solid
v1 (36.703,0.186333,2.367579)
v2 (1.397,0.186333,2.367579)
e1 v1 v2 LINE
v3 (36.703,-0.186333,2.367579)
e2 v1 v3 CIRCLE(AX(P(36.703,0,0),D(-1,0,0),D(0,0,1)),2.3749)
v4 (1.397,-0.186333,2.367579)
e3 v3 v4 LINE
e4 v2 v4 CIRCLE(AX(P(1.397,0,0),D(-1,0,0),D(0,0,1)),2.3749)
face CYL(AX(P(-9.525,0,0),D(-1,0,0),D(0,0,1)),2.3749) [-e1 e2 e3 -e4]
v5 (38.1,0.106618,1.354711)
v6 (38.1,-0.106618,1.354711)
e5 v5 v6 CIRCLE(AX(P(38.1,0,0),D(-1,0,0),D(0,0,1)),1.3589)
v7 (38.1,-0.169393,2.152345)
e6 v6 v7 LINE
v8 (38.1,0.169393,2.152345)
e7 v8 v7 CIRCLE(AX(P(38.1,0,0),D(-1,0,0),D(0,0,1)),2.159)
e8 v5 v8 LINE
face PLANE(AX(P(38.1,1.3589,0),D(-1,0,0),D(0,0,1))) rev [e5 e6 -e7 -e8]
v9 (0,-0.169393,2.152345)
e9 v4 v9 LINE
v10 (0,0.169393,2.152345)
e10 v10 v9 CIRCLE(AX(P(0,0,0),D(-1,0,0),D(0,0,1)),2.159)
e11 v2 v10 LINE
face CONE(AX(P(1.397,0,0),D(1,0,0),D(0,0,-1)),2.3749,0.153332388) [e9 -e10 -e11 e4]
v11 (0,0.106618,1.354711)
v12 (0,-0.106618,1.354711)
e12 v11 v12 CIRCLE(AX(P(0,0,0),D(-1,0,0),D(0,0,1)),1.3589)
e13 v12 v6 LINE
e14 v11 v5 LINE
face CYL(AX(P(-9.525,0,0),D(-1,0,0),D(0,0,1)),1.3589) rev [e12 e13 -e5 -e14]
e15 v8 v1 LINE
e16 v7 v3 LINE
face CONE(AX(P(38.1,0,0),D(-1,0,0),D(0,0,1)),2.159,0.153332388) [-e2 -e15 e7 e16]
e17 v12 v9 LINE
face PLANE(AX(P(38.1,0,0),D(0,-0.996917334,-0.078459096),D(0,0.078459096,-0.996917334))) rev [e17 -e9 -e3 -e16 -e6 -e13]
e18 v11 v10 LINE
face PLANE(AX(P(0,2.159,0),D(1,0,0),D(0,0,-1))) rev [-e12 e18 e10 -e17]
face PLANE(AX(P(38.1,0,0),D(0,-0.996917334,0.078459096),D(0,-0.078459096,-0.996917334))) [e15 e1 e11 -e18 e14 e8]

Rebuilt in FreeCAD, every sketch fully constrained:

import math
import FreeCAD as App
import Part
import Sketcher

V = App.Vector
Q = App.Units.Quantity


def add_polygon(sketch, points):
    """Adds a closed chain of lines whose ends are joined by coincident constraints."""
    first, n = sketch.GeometryCount, len(points)
    for a, b in zip(points, points[1:] + points[:1]):
        sketch.addGeometry(Part.LineSegment(App.Vector(*a, 0), App.Vector(*b, 0)), False)
    for i in range(n):
        sketch.addConstraint(Sketcher.Constraint("Coincident", first + i, 2, first + (i + 1) % n, 1))

doc = App.newDocument("Part")
params = doc.addObject("Spreadsheet::Sheet", "Params")
for row, (alias, value) in enumerate([
    ("sketch1_width", "1.5 in"),
    ("sketch1_width2", "1.39 in"),
    ("revolution_angle", "360 deg"),
], start=1):
    params.set(f"A{row}", alias)
    params.set(f"B{row}", "=" + value)
    params.setAlias(f"B{row}", alias)

body = doc.addObject("PartDesign::Body", "Body")

sketch1 = body.newObject("Sketcher::SketchObject", "Sketch")
sketch1.AttachmentSupport = (doc.getObject("XY_Plane"), [""])
sketch1.MapMode = "FlatFace"
add_polygon(sketch1, [(0, 1.4), (38.1, 1.4), (38.1, 2.2), (36.7, 2.4), (1.4, 2.4), (0, 2.2)])
sketch1.addConstraint(Sketcher.Constraint("Horizontal", 0))
sketch1.addConstraint(Sketcher.Constraint("Vertical", 1))
sketch1.addConstraint(Sketcher.Constraint("Horizontal", 3))
sketch1.addConstraint(Sketcher.Constraint("Vertical", 5))
sketch1.addConstraint(Sketcher.Constraint("PointOnObject", 4, 2, -2))
sketch1.addConstraint(Sketcher.Constraint("Horizontal", 1, 2, 4, 2))
sketch1.addConstraint(Sketcher.Constraint("Equal", 2, 4))
sketch1.addConstraint(Sketcher.Constraint("DistanceX", 0, 1, 0, 2, Q("1.5 in")))
sketch1.addConstraint(Sketcher.Constraint("DistanceX", 3, 2, 3, 1, Q("1.39 in")))
sketch1.addConstraint(Sketcher.Constraint("DistanceY", 0, 2, 2, 2, Q("0.04 in")))
sketch1.addConstraint(Sketcher.Constraint("DistanceY", 1, 1, 1, 2, Q("0.0315 in")))
sketch1.addConstraint(Sketcher.Constraint("DistanceY", -1, 1, 1, 2, Q("0.085 in")))
sketch1.setExpression("Constraints[13]", "Params.sketch1_width")
sketch1.setExpression("Constraints[14]", "Params.sketch1_width2")
revolution = body.newObject("PartDesign::Revolution", "Revolution")
revolution.Profile = sketch1
revolution.ReferenceAxis = (sketch1, ["H_Axis"])
revolution.setExpression("Angle", "Params.revolution_angle")

sketch2 = body.newObject("Sketcher::SketchObject", "Sketch001")
sketch2.AttachmentSupport = (doc.getObject("YZ_Plane"), [""])
sketch2.MapMode = "FlatFace"
sketch2.addGeometry(Part.LineSegment(V(0, 0, 0), V(-0.19, 2.41, 0)), False)
sketch2.addGeometry(Part.ArcOfCircle(Part.Circle(V(0, 0, 0), V(0, 0, 1), 2.42), math.radians(85.5), math.radians(94.5)), False)
sketch2.addGeometry(Part.LineSegment(V(0.19, 2.41, 0), V(0, 0, 0)), False)
sketch2.addConstraint(Sketcher.Constraint("Coincident", 0, 2, 1, 2))
sketch2.addConstraint(Sketcher.Constraint("Coincident", 1, 1, 2, 1))
sketch2.addConstraint(Sketcher.Constraint("Coincident", 2, 2, 0, 1))
sketch2.addConstraint(Sketcher.Constraint("Coincident", 1, 3, -1, 1))
sketch2.addConstraint(Sketcher.Constraint("Coincident", 2, 2, -1, 1))
sketch2.addConstraint(Sketcher.Constraint("Horizontal", 0, 2, 1, 1))
sketch2.addConstraint(Sketcher.Constraint("Angle", 0, Q("94.5 deg")))
sketch2.addConstraint(Sketcher.Constraint("Radius", 1, 2.422398))
pocket1 = body.newObject("PartDesign::Pocket", "Pocket")
pocket1.Profile = sketch2
pocket1.Type = "ThroughAll"
pocket1.Reversed = True

doc.recompute()
